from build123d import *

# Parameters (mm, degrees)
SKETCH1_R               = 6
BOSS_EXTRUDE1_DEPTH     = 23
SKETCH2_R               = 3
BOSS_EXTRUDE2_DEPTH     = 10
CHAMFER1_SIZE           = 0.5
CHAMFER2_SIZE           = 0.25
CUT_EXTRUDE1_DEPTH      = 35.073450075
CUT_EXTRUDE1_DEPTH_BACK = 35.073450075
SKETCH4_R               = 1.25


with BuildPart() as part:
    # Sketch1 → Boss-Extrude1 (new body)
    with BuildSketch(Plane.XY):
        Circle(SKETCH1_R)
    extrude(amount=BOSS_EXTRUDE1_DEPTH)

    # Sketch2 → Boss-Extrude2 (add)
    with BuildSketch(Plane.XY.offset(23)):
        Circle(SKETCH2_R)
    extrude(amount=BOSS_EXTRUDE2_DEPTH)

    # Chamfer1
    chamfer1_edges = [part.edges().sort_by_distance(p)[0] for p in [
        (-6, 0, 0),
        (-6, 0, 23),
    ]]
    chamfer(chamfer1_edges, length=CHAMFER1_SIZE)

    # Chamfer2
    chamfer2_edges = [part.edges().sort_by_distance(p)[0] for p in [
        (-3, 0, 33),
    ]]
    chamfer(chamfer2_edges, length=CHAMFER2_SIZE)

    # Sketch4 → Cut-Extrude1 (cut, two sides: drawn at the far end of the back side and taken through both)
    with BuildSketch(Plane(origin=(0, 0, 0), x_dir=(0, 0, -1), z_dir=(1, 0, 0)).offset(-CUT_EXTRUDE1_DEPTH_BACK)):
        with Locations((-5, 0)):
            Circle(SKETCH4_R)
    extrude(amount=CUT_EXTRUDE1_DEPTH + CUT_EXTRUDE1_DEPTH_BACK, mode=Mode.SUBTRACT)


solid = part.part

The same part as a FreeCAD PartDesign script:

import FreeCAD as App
import Part
import Sketcher
from FreeCAD import Vector
Q = App.Units.Quantity


def edges_at(feature, points):
    """Names of the edges that pass closest to the given points."""
    edges = feature.Shape.Edges
    near = lambda p: min(range(len(edges)), key=lambda i: edges[i].distToShape(Part.Vertex(*p))[0])
    return sorted({f"Edge{near(p) + 1}" for p in points})

doc = App.newDocument("Part")
body = doc.addObject("PartDesign::Body", "Body")

# Sketch on XY plane
sketch1 = body.newObject("Sketcher::SketchObject", "Sketch")
sketch1.AttachmentSupport = (doc.getObject("XY_Plane"), [""])
sketch1.MapMode = "FlatFace"
sketch1.addGeometry(Part.Circle(Vector(0, 0, 0), Vector(0, 0, 1), 6), False)
sketch1.addConstraint(Sketcher.Constraint("Coincident", 0, 3, -1, 1))
sketch1.addConstraint(Sketcher.Constraint("Diameter", 0, Q("12 mm")))
pad1 = body.newObject("PartDesign::Pad", "Pad")
pad1.Profile = sketch1
pad1.Length = 23

# Sketch on XY plane
sketch2 = body.newObject("Sketcher::SketchObject", "Sketch001")
sketch2.AttachmentSupport = (doc.getObject("XY_Plane"), [""])
sketch2.MapMode = "FlatFace"
sketch2.AttachmentOffset = App.Placement(Vector(0, 0, 23), App.Rotation())
sketch2.addGeometry(Part.Circle(Vector(0, 0, 0), Vector(0, 0, 1), 3), False)
sketch2.addConstraint(Sketcher.Constraint("Coincident", 0, 3, -1, 1))
sketch2.addConstraint(Sketcher.Constraint("Diameter", 0, Q("6 mm")))
pad2 = body.newObject("PartDesign::Pad", "Pad001")
pad2.Profile = sketch2
pad2.Length = 10
doc.recompute()

chamfer = body.newObject("PartDesign::Chamfer", "Chamfer")
chamfer.Base = (pad2, edges_at(pad2, [(-6, 0, 0), (-6, 0, 23)]))
chamfer.Size = 0.5
doc.recompute()

chamfer2 = body.newObject("PartDesign::Chamfer", "Chamfer001")
chamfer2.Base = (chamfer, edges_at(chamfer, [(-3, 0, 33)]))
chamfer2.Size = 0.25

# Sketch on YZ plane
sketch3 = body.newObject("Sketcher::SketchObject", "Sketch002")
sketch3.AttachmentSupport = (doc.getObject("YZ_Plane"), [""])
sketch3.MapMode = "FlatFace"
sketch3.addGeometry(Part.Circle(Vector(0, 5, 0), Vector(0, 0, 1), 1.25), False)
sketch3.addConstraint(Sketcher.Constraint("PointOnObject", 0, 3, -2))
sketch3.addConstraint(Sketcher.Constraint("Diameter", 0, Q("2.5 mm")))
sketch3.addConstraint(Sketcher.Constraint("DistanceY", -1, 1, 0, 3, Q("5 mm")))
pocket1 = body.newObject("PartDesign::Pocket", "Pocket")
pocket1.Profile = sketch3
pocket1.Type = "ThroughAll"
pocket1.Midplane = True

doc.recompute()
